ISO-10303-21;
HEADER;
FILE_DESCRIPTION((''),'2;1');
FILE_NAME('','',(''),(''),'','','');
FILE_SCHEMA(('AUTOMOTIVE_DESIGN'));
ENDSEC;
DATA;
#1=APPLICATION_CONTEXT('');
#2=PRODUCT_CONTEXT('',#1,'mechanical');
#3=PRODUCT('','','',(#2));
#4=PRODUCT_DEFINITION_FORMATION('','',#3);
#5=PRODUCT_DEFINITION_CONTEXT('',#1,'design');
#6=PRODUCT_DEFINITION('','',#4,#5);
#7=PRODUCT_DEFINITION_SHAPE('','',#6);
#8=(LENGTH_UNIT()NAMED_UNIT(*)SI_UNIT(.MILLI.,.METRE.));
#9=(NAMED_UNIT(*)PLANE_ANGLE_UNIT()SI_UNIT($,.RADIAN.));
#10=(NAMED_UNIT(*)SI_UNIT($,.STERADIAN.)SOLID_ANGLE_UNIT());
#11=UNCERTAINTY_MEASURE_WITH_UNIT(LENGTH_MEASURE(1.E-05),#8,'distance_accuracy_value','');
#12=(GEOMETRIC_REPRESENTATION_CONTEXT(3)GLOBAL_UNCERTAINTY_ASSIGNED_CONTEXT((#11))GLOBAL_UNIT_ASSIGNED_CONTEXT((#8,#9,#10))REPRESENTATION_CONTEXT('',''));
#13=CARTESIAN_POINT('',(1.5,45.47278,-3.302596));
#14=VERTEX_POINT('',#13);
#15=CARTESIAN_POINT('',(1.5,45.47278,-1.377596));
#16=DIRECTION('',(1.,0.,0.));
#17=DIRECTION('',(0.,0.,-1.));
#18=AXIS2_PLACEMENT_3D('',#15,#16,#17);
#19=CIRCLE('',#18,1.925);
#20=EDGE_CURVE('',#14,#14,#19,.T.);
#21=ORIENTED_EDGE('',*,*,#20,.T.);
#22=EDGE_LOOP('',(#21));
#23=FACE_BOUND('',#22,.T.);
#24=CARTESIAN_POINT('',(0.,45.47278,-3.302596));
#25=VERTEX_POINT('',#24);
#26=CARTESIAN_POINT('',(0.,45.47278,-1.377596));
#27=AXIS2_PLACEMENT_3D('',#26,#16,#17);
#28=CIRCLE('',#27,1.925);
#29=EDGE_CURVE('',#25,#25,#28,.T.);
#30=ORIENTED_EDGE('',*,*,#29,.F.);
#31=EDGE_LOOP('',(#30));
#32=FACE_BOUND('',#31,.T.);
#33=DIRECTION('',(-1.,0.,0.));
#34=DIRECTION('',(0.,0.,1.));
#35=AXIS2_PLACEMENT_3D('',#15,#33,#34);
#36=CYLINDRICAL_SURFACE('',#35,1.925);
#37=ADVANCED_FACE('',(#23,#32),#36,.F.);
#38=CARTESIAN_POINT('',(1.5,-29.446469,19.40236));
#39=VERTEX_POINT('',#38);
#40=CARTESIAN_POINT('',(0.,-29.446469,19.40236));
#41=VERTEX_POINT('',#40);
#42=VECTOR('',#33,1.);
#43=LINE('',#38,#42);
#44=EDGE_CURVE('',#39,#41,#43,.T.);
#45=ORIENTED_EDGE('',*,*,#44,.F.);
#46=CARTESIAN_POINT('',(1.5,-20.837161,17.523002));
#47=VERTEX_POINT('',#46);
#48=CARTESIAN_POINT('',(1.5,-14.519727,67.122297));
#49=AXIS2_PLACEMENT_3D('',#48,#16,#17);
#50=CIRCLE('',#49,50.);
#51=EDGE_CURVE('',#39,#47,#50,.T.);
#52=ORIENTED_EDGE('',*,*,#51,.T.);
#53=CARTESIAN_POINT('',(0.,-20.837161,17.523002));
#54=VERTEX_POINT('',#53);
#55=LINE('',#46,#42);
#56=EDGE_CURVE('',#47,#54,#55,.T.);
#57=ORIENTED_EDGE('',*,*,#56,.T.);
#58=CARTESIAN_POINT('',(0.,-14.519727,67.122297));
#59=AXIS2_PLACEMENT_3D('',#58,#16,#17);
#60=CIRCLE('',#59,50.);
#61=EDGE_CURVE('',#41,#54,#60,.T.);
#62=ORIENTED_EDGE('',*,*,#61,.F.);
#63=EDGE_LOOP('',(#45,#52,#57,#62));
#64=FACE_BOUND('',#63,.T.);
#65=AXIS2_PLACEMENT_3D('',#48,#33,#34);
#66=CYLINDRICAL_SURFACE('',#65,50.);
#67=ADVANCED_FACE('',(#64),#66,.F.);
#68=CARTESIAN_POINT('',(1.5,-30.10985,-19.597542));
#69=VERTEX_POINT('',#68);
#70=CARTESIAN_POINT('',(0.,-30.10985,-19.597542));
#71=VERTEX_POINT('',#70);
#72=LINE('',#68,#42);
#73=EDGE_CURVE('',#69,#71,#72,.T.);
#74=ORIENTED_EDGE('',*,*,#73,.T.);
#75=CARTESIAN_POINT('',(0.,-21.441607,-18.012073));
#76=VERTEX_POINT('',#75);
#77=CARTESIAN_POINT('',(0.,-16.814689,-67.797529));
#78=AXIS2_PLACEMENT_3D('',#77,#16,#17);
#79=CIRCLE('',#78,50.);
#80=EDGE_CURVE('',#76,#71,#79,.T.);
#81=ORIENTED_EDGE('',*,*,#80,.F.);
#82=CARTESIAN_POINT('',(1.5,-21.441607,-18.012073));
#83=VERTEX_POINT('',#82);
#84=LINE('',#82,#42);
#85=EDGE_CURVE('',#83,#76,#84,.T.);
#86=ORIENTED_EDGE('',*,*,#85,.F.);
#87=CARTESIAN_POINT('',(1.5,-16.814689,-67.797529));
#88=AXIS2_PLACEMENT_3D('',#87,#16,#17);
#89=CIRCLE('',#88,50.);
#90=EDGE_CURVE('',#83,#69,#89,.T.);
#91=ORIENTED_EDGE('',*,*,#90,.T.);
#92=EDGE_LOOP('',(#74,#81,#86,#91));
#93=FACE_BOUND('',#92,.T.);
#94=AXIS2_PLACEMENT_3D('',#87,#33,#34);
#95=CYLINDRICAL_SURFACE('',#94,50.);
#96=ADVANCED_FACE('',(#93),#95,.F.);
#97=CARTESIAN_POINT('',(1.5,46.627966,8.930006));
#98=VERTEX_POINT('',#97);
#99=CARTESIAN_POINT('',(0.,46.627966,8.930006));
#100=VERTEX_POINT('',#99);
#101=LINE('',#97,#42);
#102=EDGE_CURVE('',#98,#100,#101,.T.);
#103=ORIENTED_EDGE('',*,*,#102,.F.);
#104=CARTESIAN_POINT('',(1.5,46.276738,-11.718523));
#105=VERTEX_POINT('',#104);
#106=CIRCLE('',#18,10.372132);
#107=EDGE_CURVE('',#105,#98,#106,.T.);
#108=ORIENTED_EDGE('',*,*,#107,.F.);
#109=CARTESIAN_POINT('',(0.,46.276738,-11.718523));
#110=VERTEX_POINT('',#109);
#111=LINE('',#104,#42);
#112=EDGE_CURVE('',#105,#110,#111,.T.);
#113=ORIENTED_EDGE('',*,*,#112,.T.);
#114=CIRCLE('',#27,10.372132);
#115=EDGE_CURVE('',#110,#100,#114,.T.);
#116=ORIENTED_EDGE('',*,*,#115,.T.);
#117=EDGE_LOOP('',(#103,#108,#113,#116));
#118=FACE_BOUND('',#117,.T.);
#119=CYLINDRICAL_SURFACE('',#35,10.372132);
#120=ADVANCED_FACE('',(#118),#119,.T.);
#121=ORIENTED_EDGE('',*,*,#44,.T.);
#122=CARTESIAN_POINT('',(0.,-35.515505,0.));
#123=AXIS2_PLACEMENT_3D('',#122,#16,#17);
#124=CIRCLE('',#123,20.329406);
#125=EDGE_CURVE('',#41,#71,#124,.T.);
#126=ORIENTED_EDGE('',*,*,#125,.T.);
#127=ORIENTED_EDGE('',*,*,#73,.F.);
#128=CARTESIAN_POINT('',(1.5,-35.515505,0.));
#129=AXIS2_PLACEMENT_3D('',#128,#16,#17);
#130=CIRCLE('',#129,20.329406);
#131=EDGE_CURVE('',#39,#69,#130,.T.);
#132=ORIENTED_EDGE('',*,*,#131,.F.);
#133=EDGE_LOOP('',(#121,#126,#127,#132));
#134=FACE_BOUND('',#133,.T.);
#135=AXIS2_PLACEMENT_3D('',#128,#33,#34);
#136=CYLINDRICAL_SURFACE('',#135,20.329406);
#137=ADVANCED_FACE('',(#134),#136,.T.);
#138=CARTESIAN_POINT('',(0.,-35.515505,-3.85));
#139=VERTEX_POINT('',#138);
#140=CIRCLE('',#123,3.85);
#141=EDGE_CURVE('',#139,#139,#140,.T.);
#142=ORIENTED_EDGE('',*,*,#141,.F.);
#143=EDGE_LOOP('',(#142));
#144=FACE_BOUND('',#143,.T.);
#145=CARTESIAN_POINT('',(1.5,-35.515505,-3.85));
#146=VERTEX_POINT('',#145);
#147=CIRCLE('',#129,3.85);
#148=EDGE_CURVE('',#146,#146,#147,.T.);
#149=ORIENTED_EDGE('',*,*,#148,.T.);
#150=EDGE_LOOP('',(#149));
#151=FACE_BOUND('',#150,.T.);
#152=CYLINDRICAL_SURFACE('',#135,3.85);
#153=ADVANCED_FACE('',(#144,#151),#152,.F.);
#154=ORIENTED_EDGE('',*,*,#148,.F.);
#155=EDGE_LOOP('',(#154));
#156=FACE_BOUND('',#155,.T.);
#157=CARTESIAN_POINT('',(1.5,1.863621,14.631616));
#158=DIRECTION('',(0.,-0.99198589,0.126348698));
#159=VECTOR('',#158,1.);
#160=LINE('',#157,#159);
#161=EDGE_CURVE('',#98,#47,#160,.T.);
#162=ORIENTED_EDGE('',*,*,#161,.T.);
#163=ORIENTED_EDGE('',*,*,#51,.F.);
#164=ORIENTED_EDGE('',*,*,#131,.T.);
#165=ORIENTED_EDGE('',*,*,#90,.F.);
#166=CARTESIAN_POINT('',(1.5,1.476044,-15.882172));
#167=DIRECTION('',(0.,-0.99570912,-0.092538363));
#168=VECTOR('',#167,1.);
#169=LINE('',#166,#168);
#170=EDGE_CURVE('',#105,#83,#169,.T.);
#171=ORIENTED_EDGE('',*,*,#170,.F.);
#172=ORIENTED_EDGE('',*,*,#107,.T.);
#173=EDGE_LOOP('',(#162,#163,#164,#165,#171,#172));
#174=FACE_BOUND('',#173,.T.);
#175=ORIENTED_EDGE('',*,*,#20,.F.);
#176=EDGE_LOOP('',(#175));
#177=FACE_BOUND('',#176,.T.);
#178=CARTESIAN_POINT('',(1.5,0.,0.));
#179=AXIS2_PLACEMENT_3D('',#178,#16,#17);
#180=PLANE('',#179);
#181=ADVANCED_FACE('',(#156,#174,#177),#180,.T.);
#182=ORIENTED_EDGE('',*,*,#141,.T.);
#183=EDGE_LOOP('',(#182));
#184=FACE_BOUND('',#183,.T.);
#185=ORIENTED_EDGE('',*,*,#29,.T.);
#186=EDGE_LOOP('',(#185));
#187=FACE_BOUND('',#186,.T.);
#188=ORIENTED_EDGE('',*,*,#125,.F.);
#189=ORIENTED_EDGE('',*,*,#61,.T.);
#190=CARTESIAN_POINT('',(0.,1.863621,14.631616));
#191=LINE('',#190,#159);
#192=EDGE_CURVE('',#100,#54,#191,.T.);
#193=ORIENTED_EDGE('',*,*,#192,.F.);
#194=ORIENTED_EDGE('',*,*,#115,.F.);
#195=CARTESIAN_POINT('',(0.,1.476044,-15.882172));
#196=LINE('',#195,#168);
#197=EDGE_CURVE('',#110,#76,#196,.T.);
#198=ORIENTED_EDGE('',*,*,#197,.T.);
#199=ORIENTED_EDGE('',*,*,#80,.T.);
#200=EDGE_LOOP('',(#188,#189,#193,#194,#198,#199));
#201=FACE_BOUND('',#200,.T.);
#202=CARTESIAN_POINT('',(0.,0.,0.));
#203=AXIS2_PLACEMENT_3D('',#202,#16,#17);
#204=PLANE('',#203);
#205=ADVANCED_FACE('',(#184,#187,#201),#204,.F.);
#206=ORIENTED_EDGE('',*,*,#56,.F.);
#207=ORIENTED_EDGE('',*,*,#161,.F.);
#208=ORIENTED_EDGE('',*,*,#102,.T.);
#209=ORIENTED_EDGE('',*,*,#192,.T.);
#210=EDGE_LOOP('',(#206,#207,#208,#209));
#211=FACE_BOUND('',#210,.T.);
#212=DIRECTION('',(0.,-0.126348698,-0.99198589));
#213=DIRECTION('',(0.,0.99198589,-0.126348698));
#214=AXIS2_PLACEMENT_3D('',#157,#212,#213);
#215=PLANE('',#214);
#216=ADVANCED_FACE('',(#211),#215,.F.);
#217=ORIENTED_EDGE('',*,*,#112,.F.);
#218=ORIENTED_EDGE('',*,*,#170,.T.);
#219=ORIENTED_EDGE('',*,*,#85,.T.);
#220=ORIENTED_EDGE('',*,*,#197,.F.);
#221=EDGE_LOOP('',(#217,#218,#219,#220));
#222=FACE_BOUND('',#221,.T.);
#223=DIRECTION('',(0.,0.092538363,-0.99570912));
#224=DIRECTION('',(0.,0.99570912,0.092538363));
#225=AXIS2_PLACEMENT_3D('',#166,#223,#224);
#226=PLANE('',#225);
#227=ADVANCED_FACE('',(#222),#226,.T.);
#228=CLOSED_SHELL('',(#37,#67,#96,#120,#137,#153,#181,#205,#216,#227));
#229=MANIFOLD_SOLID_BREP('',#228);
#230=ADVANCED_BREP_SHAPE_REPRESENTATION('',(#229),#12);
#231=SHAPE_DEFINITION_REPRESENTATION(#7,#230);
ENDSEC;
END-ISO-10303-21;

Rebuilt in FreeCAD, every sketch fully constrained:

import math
import FreeCAD as App
import Part
import Sketcher
from FreeCAD import Vector

doc = App.newDocument("Part")
body = doc.addObject("PartDesign::Body", "Body")

# Sketch on YZ plane
sketch1 = doc.addObject("Sketcher::SketchObject", "Sketch")
body.addObject(sketch1)
sketch1.AttachmentSupport = (doc.YZ_Plane, [""])
sketch1.MapMode = "FlatFace"
sketch1.addGeometry(Part.LineSegment(Vector(-21.4, -18, 0), Vector(46.3, -11.7, 0)), False)
sketch1.addGeometry(Part.ArcOfCircle(Part.Circle(Vector(45.5, -1.4, 0), Vector(0, 0, 1), 10.4), math.radians(-86), math.radians(84)), False)
sketch1.addGeometry(Part.LineSegment(Vector(46.6, 8.9, 0), Vector(-20.8, 17.5, 0)), False)
sketch1.addGeometry(Part.ArcOfCircle(Part.Circle(Vector(-14.5, 67.1, 0), Vector(0, 0, 1), 50), math.radians(-107.37), math.radians(-97.26)), False)
sketch1.addGeometry(Part.ArcOfCircle(Part.Circle(Vector(-35.5, 0, 0), Vector(0, 0, 1), 20.3), math.radians(72.63), math.radians(80)), False)
sketch1.addGeometry(Part.ArcOfCircle(Part.Circle(Vector(-35.5, 0, 0), Vector(0, 0, 1), 20.3), math.radians(80), math.radians(278)), False)
sketch1.addGeometry(Part.ArcOfCircle(Part.Circle(Vector(-35.5, 0, 0), Vector(0, 0, 1), 20.3), math.radians(-81.95), math.radians(-74.58)), False)
sketch1.addGeometry(Part.ArcOfCircle(Part.Circle(Vector(-16.8, -67.8, 0), Vector(0, 0, 1), 50), math.radians(95.31), math.radians(105.42)), False)
sketch1.addGeometry(Part.Circle(Vector(-35.5, 0, 0), Vector(0, 0, 1), 3.9), False)
sketch1.addGeometry(Part.Circle(Vector(45.5, -1.4, 0), Vector(0, 0, 1), 1.9), False)
sketch1.addConstraint(Sketcher.Constraint("Coincident", 0, 2, 1, 1))
sketch1.addConstraint(Sketcher.Constraint("Coincident", 1, 2, 2, 1))
sketch1.addConstraint(Sketcher.Constraint("Tangent", 2, 2, 3, 2))
sketch1.addConstraint(Sketcher.Constraint("Tangent", 3, 1, 4, 1))
sketch1.addConstraint(Sketcher.Constraint("Tangent", 4, 2, 5, 1))
sketch1.addConstraint(Sketcher.Constraint("Tangent", 5, 2, 6, 1))
sketch1.addConstraint(Sketcher.Constraint("Tangent", 6, 2, 7, 2))
sketch1.addConstraint(Sketcher.Constraint("Tangent", 7, 1, 0, 1))
sketch1.addConstraint(Sketcher.Constraint("Coincident", 6, 3, 4, 3))
sketch1.addConstraint(Sketcher.Constraint("Coincident", 8, 3, 4, 3))
sketch1.addConstraint(Sketcher.Constraint("Coincident", 9, 3, 1, 3))
sketch1.addConstraint(Sketcher.Constraint("Equal", 3, 7))
sketch1.addConstraint(Sketcher.Constraint("PointOnObject", 4, 3, -1))
sketch1.addConstraint(Sketcher.Constraint("Equal", 0, 2))
sketch1.addConstraint(Sketcher.Constraint("Radius", 3, 50.0))
sketch1.addConstraint(Sketcher.Constraint("Diameter", 8, 7.7))
sketch1.addConstraint(Sketcher.Constraint("Diameter", 9, 3.85))
sketch1.addConstraint(Sketcher.Constraint("Radius", 1, 10.372132))
sketch1.addConstraint(Sketcher.Constraint("Radius", 4, 20.329406))
sketch1.addConstraint(Sketcher.Constraint("DistanceY", 4, 3, 2, 2, 17.523002))
sketch1.addConstraint(Sketcher.Constraint("DistanceX", 4, 3, 4, 2, 3.528802))
sketch1.addConstraint(Sketcher.Constraint("DistanceX", 6, 3, 7, 1, 14.073898))
sketch1.addConstraint(Sketcher.Constraint("Distance", 0, 68.010168))
sketch1.addConstraint(Sketcher.Constraint("DistanceX", -1, 1, 1, 3, 45.47278))
sketch1.addConstraint(Sketcher.Constraint("DistanceX", 7, 3, -1, 1, 16.814688))
sketch1.addConstraint(Sketcher.Constraint("DistanceY", 7, 3, -1, 1, 67.797529))
sketch1.addConstraint(Sketcher.Constraint("DistanceX", 5, 2, -1, 1, 32.669648))
pad1 = doc.addObject("PartDesign::Pad", "Pad")
body.addObject(pad1)
pad1.Profile = sketch1
pad1.Length = 1.5

doc.recompute()
